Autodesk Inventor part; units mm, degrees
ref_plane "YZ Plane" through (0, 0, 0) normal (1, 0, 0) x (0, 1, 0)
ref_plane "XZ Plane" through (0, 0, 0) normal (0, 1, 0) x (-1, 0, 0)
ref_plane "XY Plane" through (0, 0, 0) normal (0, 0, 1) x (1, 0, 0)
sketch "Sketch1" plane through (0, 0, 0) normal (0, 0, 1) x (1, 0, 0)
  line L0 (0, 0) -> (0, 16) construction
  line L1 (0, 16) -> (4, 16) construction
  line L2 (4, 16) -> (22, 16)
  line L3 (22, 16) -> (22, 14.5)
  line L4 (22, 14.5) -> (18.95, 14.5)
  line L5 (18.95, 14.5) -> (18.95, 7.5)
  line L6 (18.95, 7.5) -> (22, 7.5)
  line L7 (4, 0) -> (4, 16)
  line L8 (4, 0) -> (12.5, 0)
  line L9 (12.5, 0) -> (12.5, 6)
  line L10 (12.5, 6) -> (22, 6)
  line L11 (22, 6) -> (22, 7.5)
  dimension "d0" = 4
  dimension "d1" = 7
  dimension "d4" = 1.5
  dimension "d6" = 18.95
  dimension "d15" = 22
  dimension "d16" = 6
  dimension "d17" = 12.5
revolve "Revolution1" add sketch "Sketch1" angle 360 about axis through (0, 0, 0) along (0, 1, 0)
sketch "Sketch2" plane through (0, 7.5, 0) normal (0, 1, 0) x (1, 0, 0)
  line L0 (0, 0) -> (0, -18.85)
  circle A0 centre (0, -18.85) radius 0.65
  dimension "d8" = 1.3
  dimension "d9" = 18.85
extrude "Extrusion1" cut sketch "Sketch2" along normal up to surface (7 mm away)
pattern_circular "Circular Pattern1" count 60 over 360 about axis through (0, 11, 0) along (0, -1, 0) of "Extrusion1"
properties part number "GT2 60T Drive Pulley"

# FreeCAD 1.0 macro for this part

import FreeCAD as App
import Part
import Sketcher

V = App.Vector
Q = App.Units.Quantity


def add_polygon(sketch, points):
    """Adds a closed chain of lines whose ends are joined by coincident constraints."""
    first, n = sketch.GeometryCount, len(points)
    for a, b in zip(points, points[1:] + points[:1]):
        sketch.addGeometry(Part.LineSegment(App.Vector(*a, 0), App.Vector(*b, 0)), False)
    for i in range(n):
        sketch.addConstraint(Sketcher.Constraint("Coincident", first + i, 2, first + (i + 1) % n, 1))

doc = App.newDocument("Part")
body = doc.addObject("PartDesign::Body", "Body")

# Sketch on XY plane
sketch1 = body.newObject("Sketcher::SketchObject", "Sketch")
sketch1.AttachmentSupport = (doc.getObject("XY_Plane"), [""])
sketch1.MapMode = "FlatFace"
add_polygon(sketch1, [(22, 16), (4, 16), (4, 0), (12.5, 0), (12.5, 6), (22, 6), (22, 7.5), (18.9, 7.5), (18.9, 14.5), (22, 14.5)])  # lines 0-9
sketch1.addConstraint([
    Sketcher.Constraint("Horizontal", 0),
    Sketcher.Constraint("Vertical", 1),
    Sketcher.Constraint("Horizontal", 2),
    Sketcher.Constraint("Vertical", 3),
    Sketcher.Constraint("Horizontal", 4),
    Sketcher.Constraint("Vertical", 5),
    Sketcher.Constraint("Horizontal", 6),
    Sketcher.Constraint("Vertical", 7),
    Sketcher.Constraint("Horizontal", 8),
    Sketcher.Constraint("Vertical", 9),
    Sketcher.Constraint("PointOnObject", 1, 2, -1),
    Sketcher.Constraint("Vertical", 5, 2, 8, 2),
    Sketcher.Constraint("Equal", 5, 9),
    Sketcher.Constraint("DistanceY", 3, 1, 3, 2, Q("6 mm")),
    Sketcher.Constraint("DistanceY", 7, 1, 7, 2, Q("7 mm")),
    Sketcher.Constraint("DistanceY", 5, 1, 5, 2, Q("1.5 mm")),
    Sketcher.Constraint("DistanceX", -1, 1, 0, 2, Q("4 mm")),
    Sketcher.Constraint("DistanceX", -1, 1, 4, 2, Q("22 mm")),
    Sketcher.Constraint("DistanceX", -1, 1, 2, 2, Q("12.5 mm")),
    Sketcher.Constraint("DistanceX", -1, 1, 6, 2, Q("18.95 mm")),
])
revolution = body.newObject("PartDesign::Revolution", "Revolution")
revolution.Profile = sketch1
revolution.ReferenceAxis = (sketch1, ["V_Axis"])
revolution.Angle = 360

# Sketch on XZ plane
sketch2 = body.newObject("Sketcher::SketchObject", "Sketch001")
sketch2.AttachmentSupport = (doc.getObject("XZ_Plane"), [""])
sketch2.MapMode = "FlatFace"
sketch2.AttachmentOffset = App.Placement(V(0, 0, -7.5), App.Rotation())
sketch2.addGeometry(Part.Circle(V(0, 18.9, 0), V(0, 0, 1), 0.7), False)
sketch2.addConstraint([
    Sketcher.Constraint("PointOnObject", 0, 3, -2),
    Sketcher.Constraint("Diameter", 0, Q("1.3 mm")),
    Sketcher.Constraint("DistanceY", -1, 1, 0, 3, Q("18.85 mm")),
])
pocket1 = body.newObject("PartDesign::Pocket", "Pocket")
pocket1.Profile = sketch2
pocket1.Length = 7
doc.recompute()

polarpattern = body.newObject("PartDesign::PolarPattern", "PolarPattern")
polarpattern.Originals = [pocket1]
polarpattern.Axis = (doc.getObject("Y_Axis"), [""])
polarpattern.Angle = 360
polarpattern.Occurrences = 60
body.Tip = polarpattern

doc.recompute()
